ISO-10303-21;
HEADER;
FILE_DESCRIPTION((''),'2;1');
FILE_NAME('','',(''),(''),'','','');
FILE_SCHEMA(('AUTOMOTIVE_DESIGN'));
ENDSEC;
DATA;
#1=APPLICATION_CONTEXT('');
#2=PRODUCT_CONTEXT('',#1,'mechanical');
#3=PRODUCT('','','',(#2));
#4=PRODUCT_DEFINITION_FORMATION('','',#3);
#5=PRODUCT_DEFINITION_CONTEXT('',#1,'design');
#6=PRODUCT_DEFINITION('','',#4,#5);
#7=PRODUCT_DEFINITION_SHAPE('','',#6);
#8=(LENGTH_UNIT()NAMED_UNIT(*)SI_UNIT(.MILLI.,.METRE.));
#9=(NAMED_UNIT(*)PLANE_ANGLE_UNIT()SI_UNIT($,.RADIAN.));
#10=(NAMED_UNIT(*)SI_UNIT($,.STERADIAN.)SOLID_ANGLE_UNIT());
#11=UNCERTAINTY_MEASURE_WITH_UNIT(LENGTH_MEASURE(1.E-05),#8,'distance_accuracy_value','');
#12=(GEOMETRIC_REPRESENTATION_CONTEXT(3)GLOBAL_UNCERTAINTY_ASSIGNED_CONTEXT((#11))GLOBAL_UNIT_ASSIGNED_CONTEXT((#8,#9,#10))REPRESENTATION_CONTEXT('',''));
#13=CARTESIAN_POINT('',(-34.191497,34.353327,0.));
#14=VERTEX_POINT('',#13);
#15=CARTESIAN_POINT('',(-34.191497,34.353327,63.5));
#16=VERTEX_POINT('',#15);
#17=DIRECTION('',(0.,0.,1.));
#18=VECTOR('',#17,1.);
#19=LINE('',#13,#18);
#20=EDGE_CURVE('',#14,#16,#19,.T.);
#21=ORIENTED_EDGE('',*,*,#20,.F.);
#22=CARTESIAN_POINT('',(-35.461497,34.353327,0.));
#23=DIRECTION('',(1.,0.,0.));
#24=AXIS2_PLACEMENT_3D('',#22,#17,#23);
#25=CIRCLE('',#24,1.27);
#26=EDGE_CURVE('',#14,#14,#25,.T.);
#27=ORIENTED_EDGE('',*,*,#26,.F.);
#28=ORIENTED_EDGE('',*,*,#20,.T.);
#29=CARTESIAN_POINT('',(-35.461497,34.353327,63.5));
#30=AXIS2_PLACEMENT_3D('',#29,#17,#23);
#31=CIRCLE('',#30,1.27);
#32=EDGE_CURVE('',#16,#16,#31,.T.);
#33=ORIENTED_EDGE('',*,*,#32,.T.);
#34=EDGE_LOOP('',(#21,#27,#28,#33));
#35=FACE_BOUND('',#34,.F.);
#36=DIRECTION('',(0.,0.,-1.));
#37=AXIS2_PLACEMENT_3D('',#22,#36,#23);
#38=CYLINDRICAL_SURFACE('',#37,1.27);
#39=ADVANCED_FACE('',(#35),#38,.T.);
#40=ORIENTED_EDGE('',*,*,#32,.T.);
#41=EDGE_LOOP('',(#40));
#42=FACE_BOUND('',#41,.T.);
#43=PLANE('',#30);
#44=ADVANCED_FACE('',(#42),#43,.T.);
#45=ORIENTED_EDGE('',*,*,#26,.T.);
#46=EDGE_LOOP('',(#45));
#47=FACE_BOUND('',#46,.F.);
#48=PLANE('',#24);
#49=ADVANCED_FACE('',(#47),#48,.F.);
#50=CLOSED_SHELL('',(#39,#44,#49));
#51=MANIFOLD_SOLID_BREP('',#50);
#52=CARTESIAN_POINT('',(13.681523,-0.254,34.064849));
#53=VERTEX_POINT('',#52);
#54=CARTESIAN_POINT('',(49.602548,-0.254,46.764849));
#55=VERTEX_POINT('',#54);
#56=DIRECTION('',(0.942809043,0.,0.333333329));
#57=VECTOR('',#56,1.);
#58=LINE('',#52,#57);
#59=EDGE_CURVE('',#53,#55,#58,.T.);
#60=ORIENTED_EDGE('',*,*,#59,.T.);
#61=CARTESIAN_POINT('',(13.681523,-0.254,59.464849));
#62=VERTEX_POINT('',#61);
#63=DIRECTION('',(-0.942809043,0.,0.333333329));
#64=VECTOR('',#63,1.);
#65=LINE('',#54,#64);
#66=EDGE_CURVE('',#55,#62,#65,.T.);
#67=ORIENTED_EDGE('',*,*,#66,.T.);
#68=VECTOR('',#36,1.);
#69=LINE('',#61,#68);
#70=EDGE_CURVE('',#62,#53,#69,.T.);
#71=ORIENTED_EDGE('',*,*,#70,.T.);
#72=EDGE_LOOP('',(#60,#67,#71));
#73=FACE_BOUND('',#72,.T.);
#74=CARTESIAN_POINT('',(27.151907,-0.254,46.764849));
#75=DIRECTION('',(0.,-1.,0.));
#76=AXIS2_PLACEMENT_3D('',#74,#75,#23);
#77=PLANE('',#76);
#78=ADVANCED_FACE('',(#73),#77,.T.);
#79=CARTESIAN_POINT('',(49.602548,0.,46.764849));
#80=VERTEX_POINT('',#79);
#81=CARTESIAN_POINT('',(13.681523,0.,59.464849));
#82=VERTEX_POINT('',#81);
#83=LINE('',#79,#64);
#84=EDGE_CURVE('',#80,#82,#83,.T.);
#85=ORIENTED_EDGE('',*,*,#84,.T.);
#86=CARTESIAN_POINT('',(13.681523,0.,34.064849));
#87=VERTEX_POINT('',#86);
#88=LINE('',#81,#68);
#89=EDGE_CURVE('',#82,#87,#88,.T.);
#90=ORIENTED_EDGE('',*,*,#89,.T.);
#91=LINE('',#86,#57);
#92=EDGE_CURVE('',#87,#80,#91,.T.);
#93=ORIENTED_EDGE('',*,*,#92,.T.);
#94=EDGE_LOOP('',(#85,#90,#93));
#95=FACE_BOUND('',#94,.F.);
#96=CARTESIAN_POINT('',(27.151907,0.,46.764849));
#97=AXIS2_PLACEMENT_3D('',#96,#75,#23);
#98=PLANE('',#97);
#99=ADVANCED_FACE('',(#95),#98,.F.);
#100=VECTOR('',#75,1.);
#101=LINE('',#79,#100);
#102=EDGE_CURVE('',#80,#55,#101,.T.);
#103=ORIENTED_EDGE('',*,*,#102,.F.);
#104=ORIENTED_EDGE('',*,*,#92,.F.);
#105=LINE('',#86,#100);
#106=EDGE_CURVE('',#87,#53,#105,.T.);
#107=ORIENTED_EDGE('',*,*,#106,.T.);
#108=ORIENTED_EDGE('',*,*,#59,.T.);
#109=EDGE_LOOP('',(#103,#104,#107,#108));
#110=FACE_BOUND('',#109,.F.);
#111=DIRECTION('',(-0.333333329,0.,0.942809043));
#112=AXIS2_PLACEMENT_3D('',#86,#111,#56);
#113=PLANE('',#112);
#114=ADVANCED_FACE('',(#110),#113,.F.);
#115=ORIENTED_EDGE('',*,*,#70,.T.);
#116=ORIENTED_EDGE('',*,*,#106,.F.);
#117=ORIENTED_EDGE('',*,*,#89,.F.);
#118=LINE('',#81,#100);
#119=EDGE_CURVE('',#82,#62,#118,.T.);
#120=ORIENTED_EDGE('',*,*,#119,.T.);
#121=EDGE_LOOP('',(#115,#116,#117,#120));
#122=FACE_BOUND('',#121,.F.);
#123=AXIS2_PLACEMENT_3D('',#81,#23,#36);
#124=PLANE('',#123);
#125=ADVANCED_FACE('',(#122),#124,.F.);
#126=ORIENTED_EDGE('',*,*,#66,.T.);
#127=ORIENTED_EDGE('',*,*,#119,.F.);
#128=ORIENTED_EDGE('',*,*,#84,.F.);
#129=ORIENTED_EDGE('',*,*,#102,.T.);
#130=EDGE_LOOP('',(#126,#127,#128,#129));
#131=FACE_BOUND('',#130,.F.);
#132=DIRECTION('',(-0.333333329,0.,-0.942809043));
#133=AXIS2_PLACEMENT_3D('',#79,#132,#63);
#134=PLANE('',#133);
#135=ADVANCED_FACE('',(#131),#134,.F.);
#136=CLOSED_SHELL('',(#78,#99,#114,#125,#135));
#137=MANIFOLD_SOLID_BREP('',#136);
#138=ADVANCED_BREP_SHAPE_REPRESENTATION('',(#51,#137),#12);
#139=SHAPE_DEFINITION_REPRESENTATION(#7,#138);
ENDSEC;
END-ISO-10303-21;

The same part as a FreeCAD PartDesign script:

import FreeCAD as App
import Part
import Sketcher
Q = App.Units.Quantity

doc = App.newDocument("Part")
body = doc.addObject("PartDesign::Body", "Body")

# Sketch on XY plane
sketch1 = body.newObject("Sketcher::SketchObject", "Sketch")
sketch1.AttachmentSupport = (doc.getObject("XY_Plane"), [""])
sketch1.MapMode = "FlatFace"
sketch1.addGeometry(Part.Circle(App.Vector(-35.5, 34.4, 0), App.Vector(0, 0, 1), 1.3), False)
sketch1.addConstraint([
    Sketcher.Constraint("Diameter", 0, Q("0.1 in")),
    Sketcher.Constraint("DistanceX", 0, 3, -1, 1, 35.461497),
    Sketcher.Constraint("DistanceY", -1, 1, 0, 3, 34.353327),
])
pad1 = body.newObject("PartDesign::Pad", "Pad")
pad1.Profile = sketch1
pad1.Length = Q("2.5 in")
body2 = doc.addObject("PartDesign::Body", "Body001")

# Sketch on XZ plane
sketch2 = body2.newObject("Sketcher::SketchObject", "Sketch001")
sketch2.AttachmentSupport = (doc.getObject("XZ_Plane001"), [""])
sketch2.MapMode = "FlatFace"
sketch2.addGeometry([
    Part.LineSegment(App.Vector(50, 47, 0), App.Vector(14, 59, 0)),
    Part.LineSegment(App.Vector(14, 59, 0), App.Vector(14, 34, 0)),
    Part.LineSegment(App.Vector(14, 34, 0), App.Vector(50, 47, 0)),
], False)
sketch2.addConstraint([
    Sketcher.Constraint("Coincident", 0, 2, 1, 1),
    Sketcher.Constraint("Coincident", 1, 2, 2, 1),
    Sketcher.Constraint("Coincident", 2, 2, 0, 1),
    Sketcher.Constraint("Vertical", 1),
    Sketcher.Constraint("Equal", 0, 2),
    Sketcher.Constraint("DistanceY", 1, 2, 1, 1, Q("1 in")),
    Sketcher.Constraint("Distance", 0, Q("1.5 in")),
    Sketcher.Constraint("DistanceY", -1, 1, 0, 2, 59.464849),
    Sketcher.Constraint("DistanceX", -1, 1, 0, 2, 13.681523),
])
pad2 = body2.newObject("PartDesign::Pad", "Pad001")
pad2.Profile = sketch2
pad2.Length = Q("0.01 in")

doc.recompute()
